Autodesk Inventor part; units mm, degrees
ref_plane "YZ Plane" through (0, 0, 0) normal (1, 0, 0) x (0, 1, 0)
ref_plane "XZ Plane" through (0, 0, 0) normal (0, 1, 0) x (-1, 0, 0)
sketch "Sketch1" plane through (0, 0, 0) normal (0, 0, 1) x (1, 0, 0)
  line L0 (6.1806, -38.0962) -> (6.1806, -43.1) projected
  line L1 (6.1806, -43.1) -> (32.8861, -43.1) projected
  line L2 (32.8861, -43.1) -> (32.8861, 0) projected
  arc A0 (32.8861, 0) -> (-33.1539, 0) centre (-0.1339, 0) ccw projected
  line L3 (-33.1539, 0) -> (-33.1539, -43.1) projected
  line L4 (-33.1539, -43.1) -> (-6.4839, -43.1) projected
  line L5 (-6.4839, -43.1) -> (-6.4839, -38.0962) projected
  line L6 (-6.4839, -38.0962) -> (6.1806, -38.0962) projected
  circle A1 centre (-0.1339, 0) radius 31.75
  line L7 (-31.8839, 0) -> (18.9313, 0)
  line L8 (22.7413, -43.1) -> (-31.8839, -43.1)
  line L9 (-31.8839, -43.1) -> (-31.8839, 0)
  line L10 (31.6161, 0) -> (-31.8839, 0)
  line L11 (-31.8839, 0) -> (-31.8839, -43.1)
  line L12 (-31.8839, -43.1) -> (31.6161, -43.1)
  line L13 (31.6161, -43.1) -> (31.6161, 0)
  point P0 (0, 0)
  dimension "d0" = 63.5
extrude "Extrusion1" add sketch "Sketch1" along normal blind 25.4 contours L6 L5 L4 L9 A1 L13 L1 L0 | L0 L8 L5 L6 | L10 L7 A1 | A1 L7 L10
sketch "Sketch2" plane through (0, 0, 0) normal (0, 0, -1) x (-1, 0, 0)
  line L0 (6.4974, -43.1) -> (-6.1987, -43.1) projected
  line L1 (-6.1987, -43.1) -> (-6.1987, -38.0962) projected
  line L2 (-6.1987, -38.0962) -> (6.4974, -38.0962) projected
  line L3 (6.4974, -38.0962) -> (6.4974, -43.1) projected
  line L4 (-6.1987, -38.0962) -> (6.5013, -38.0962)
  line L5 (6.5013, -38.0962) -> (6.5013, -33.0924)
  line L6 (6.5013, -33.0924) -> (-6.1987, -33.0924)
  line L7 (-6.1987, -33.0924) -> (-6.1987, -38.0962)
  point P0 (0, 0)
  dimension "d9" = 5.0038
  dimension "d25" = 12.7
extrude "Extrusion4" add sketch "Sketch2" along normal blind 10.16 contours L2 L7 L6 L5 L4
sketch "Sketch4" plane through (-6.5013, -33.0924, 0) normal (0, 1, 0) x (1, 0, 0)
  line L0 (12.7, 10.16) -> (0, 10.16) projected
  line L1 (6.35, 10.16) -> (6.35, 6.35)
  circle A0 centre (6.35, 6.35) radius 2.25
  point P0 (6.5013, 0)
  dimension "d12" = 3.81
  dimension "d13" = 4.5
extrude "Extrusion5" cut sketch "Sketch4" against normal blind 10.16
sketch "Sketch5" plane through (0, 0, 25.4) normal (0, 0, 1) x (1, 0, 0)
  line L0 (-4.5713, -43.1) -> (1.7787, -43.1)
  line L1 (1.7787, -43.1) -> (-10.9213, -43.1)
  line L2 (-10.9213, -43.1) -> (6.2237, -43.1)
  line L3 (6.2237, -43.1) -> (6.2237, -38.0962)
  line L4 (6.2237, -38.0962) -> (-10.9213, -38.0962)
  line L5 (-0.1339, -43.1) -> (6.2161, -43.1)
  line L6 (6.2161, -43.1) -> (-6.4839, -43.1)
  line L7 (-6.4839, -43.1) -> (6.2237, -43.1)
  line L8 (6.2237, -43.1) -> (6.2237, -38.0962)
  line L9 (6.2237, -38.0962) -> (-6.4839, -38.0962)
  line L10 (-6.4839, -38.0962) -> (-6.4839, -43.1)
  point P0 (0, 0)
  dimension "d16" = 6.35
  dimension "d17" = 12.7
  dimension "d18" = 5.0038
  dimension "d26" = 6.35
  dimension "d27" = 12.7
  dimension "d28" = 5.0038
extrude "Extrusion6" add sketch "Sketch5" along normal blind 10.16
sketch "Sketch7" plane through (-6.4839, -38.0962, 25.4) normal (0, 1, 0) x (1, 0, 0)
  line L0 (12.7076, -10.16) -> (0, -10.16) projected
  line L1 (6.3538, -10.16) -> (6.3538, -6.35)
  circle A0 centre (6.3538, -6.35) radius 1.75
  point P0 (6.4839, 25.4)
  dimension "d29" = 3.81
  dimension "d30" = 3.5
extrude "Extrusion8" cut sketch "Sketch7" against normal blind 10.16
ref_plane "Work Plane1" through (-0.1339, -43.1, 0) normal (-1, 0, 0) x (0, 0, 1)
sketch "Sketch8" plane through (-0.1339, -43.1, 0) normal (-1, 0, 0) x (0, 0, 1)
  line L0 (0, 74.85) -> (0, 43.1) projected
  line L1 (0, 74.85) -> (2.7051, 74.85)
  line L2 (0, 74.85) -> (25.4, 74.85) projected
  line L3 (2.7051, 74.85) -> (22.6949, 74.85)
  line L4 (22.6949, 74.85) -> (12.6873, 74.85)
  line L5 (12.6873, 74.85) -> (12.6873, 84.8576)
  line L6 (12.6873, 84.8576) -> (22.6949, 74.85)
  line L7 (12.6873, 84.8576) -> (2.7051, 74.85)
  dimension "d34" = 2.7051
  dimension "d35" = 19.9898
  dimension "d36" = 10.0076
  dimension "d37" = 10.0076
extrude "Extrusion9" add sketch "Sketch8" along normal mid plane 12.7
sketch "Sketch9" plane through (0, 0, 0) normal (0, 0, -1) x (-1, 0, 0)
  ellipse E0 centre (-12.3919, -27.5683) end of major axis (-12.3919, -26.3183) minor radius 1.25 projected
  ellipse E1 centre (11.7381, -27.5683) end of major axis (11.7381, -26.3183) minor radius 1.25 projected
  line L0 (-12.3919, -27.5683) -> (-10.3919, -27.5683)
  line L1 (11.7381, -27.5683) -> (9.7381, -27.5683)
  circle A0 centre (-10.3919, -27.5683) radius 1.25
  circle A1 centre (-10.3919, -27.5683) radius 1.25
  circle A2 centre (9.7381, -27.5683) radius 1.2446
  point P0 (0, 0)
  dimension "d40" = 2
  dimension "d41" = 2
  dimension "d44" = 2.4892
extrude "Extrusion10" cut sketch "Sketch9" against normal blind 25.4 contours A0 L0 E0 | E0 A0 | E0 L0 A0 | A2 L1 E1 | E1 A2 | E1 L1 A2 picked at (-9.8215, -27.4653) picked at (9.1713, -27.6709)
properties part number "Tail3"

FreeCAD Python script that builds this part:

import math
import FreeCAD as App
import Part
import Sketcher
Q = App.Units.Quantity


def add_polygon(sketch, points):
    """Adds a closed chain of lines whose ends are joined by coincident constraints."""
    first, n = sketch.GeometryCount, len(points)
    for a, b in zip(points, points[1:] + points[:1]):
        sketch.addGeometry(Part.LineSegment(App.Vector(*a, 0), App.Vector(*b, 0)), False)
    for i in range(n):
        sketch.addConstraint(Sketcher.Constraint("Coincident", first + i, 2, first + (i + 1) % n, 1))

doc = App.newDocument("Part")
body = doc.addObject("PartDesign::Body", "Body")
body.AllowCompound = True

sketch1 = body.newObject("Sketcher::SketchObject", "Sketch")
sketch1.AttachmentSupport = (doc.getObject("XY_Plane"), [""])
sketch1.MapMode = "FlatFace"
sketch1.addGeometry([
    Part.LineSegment(App.Vector(-31.8839, -43.1, 0), App.Vector(31.6161, -43.1, 0)),
    Part.LineSegment(App.Vector(31.6161, -43.1, 0), App.Vector(31.6161, 0, 0)),
    Part.ArcOfCircle(Part.Circle(App.Vector(-0.1339, 0, 0), App.Vector(0, 0, 1), 31.75), math.radians(0), math.radians(180)),
    Part.LineSegment(App.Vector(-31.8839, 0, 0), App.Vector(-31.8839, -43.1, 0)),
], False)
sketch1.addConstraint([
    Sketcher.Constraint("Coincident", 0, 2, 1, 1),
    Sketcher.Constraint("Tangent", 1, 2, 2, 1),
    Sketcher.Constraint("Tangent", 2, 2, 3, 1),
    Sketcher.Constraint("Coincident", 3, 2, 0, 1),
    Sketcher.Constraint("Horizontal", 0),
    Sketcher.Constraint("Vertical", 1),
    Sketcher.Constraint("Vertical", 3),
    Sketcher.Constraint("PointOnObject", 2, 3, -1),
    Sketcher.Constraint("Radius", 2, Q("1.25 in")),
    Sketcher.Constraint("DistanceY", 1, 1, 1, 2, Q("43.1 mm")),
    Sketcher.Constraint("DistanceX", 2, 3, -1, 1, Q("0.134 mm")),
])
pad1 = body.newObject("PartDesign::Pad", "Pad")
pad1.Profile = sketch1
pad1.Length = Q("1 in")

sketch2 = body.newObject("Sketcher::SketchObject", "Sketch001")
sketch2.AttachmentSupport = (doc.getObject("XY_Plane"), [""])
sketch2.MapMode = "FlatFace"
add_polygon(sketch2, [(6.1987, -38.0962), (-6.5013, -38.0962), (-6.5013, -33.0924), (6.1987, -33.0924)])
sketch2.addConstraint([
    Sketcher.Constraint("Horizontal", 0),
    Sketcher.Constraint("Vertical", 1),
    Sketcher.Constraint("Horizontal", 2),
    Sketcher.Constraint("Vertical", 3),
    Sketcher.Constraint("DistanceX", 0, 2, 0, 1, Q("0.5 in")),
    Sketcher.Constraint("DistanceY", 1, 1, 1, 2, Q("0.197 in")),
    Sketcher.Constraint("DistanceX", 0, 2, -1, 1, Q("6.5013 mm")),
    Sketcher.Constraint("DistanceY", 0, 2, -1, 1, Q("38.0962 mm")),
])
pad2 = body.newObject("PartDesign::Pad", "Pad001")
pad2.Profile = sketch2
pad2.Length = Q("0.4 in")
pad2.Reversed = True

sketch3 = body.newObject("Sketcher::SketchObject", "Sketch002")
sketch3.AttachmentSupport = (doc.getObject("XZ_Plane"), [""])
sketch3.MapMode = "FlatFace"
sketch3.AttachmentOffset = App.Placement(App.Vector(0, 0, 33.0924), App.Rotation())
sketch3.addGeometry(Part.Circle(App.Vector(-0.1513, -6.35, 0), App.Vector(0, 0, 1), 2.25), False)
sketch3.addConstraint([
    Sketcher.Constraint("Diameter", 0, Q("4.5 mm")),
    Sketcher.Constraint("DistanceY", 0, 3, -1, 1, Q("0.25 in")),
    Sketcher.Constraint("DistanceX", 0, 3, -1, 1, Q("0.1513 mm")),
])
pocket1 = body.newObject("PartDesign::Pocket", "Pocket")
pocket1.Profile = sketch3
pocket1.Length = Q("0.4 in")
pocket1.Reversed = True

sketch4 = body.newObject("Sketcher::SketchObject", "Sketch003")
sketch4.AttachmentSupport = (doc.getObject("XY_Plane"), [""])
sketch4.MapMode = "FlatFace"
sketch4.AttachmentOffset = App.Placement(App.Vector(0, 0, 1 * 25.4), App.Rotation())
add_polygon(sketch4, [(-6.4839, -43.1), (6.2237, -43.1), (6.2237, -38.0962), (-6.4839, -38.0962)])
sketch4.addConstraint([
    Sketcher.Constraint("Horizontal", 0),
    Sketcher.Constraint("Vertical", 1),
    Sketcher.Constraint("Horizontal", 2),
    Sketcher.Constraint("Vertical", 3),
    Sketcher.Constraint("DistanceY", 1, 1, 1, 2, Q("0.197 in")),
    Sketcher.Constraint("DistanceX", 0, 1, 0, 2, Q("0.5003 in")),
    Sketcher.Constraint("DistanceX", -1, 1, 0, 2, Q("6.2237 mm")),
    Sketcher.Constraint("DistanceY", 0, 2, -1, 1, Q("43.1 mm")),
])
pad3 = body.newObject("PartDesign::Pad", "Pad002")
pad3.Profile = sketch4
pad3.Length = Q("0.4 in")

sketch5 = body.newObject("Sketcher::SketchObject", "Sketch004")
sketch5.AttachmentSupport = (doc.getObject("XZ_Plane"), [""])
sketch5.MapMode = "FlatFace"
sketch5.AttachmentOffset = App.Placement(App.Vector(0, 0, 38.0962), App.Rotation())
sketch5.addGeometry(Part.Circle(App.Vector(-0.1301, 31.75, 0), App.Vector(0, 0, 1), 1.75), False)
sketch5.addConstraint([
    Sketcher.Constraint("Diameter", 0, Q("0.1378 in")),
    Sketcher.Constraint("DistanceY", -1, 1, 0, 3, Q("1.25 in")),
    Sketcher.Constraint("DistanceX", 0, 3, -1, 1, Q("0.13 mm")),
])
pocket2 = body.newObject("PartDesign::Pocket", "Pocket001")
pocket2.Profile = sketch5
pocket2.Length = Q("0.4 in")
pocket2.Reversed = True

sketch6 = body.newObject("Sketcher::SketchObject", "Sketch005")
sketch6.AttachmentSupport = (doc.getObject("YZ_Plane"), [""])
sketch6.MapMode = "FlatFace"
sketch6.AttachmentOffset = App.Placement(App.Vector(0, 0, -0.1339), App.Rotation())
add_polygon(sketch6, [(41.7576, 12.6873), (31.75, 2.7051), (31.75, 22.6949)])
sketch6.addConstraint([
    Sketcher.Constraint("Vertical", 1),
    Sketcher.Constraint("DistanceY", 1, 1, 1, 2, Q("0.787 in")),
    Sketcher.Constraint("Angle", 2, Q("-45 deg")),
    Sketcher.Constraint("DistanceX", 0, 2, 2, 2, Q("0.394 in")),
    Sketcher.Constraint("DistanceY", -1, 1, 0, 2, Q("0.1065 in")),
    Sketcher.Constraint("DistanceX", -1, 1, 0, 2, Q("1.25 in")),
])
pad4 = body.newObject("PartDesign::Pad", "Pad003")
pad4.Profile = sketch6
pad4.Length = Q("0.5 in")
pad4.Midplane = True

sketch7 = body.newObject("Sketcher::SketchObject", "Sketch006")
sketch7.AttachmentSupport = (doc.getObject("XY_Plane"), [""])
sketch7.MapMode = "FlatFace"
sketch7.addGeometry([
    Part.Circle(App.Vector(10.3919, -27.5683, 0), App.Vector(0, 0, 1), 1.25),
    Part.Circle(App.Vector(-9.7381, -27.5683, 0), App.Vector(0, 0, 1), 1.2446),
], False)
sketch7.addConstraint([
    Sketcher.Constraint("Horizontal", 0, 3, 1, 3),
    Sketcher.Constraint("Diameter", 1, Q("0.098 in")),
    Sketcher.Constraint("Diameter", 0, Q("2.5 mm")),
    Sketcher.Constraint("DistanceX", 1, 3, -1, 1, Q("0.3834 in")),
    Sketcher.Constraint("DistanceX", -1, 1, 0, 3, Q("10.392 mm")),
    Sketcher.Constraint("DistanceY", 0, 3, -1, 1, Q("27.5683 mm")),
])
pocket3 = body.newObject("PartDesign::Pocket", "Pocket002")
pocket3.Profile = sketch7
pocket3.Length = Q("1 in")
pocket3.Reversed = True

doc.recompute()
